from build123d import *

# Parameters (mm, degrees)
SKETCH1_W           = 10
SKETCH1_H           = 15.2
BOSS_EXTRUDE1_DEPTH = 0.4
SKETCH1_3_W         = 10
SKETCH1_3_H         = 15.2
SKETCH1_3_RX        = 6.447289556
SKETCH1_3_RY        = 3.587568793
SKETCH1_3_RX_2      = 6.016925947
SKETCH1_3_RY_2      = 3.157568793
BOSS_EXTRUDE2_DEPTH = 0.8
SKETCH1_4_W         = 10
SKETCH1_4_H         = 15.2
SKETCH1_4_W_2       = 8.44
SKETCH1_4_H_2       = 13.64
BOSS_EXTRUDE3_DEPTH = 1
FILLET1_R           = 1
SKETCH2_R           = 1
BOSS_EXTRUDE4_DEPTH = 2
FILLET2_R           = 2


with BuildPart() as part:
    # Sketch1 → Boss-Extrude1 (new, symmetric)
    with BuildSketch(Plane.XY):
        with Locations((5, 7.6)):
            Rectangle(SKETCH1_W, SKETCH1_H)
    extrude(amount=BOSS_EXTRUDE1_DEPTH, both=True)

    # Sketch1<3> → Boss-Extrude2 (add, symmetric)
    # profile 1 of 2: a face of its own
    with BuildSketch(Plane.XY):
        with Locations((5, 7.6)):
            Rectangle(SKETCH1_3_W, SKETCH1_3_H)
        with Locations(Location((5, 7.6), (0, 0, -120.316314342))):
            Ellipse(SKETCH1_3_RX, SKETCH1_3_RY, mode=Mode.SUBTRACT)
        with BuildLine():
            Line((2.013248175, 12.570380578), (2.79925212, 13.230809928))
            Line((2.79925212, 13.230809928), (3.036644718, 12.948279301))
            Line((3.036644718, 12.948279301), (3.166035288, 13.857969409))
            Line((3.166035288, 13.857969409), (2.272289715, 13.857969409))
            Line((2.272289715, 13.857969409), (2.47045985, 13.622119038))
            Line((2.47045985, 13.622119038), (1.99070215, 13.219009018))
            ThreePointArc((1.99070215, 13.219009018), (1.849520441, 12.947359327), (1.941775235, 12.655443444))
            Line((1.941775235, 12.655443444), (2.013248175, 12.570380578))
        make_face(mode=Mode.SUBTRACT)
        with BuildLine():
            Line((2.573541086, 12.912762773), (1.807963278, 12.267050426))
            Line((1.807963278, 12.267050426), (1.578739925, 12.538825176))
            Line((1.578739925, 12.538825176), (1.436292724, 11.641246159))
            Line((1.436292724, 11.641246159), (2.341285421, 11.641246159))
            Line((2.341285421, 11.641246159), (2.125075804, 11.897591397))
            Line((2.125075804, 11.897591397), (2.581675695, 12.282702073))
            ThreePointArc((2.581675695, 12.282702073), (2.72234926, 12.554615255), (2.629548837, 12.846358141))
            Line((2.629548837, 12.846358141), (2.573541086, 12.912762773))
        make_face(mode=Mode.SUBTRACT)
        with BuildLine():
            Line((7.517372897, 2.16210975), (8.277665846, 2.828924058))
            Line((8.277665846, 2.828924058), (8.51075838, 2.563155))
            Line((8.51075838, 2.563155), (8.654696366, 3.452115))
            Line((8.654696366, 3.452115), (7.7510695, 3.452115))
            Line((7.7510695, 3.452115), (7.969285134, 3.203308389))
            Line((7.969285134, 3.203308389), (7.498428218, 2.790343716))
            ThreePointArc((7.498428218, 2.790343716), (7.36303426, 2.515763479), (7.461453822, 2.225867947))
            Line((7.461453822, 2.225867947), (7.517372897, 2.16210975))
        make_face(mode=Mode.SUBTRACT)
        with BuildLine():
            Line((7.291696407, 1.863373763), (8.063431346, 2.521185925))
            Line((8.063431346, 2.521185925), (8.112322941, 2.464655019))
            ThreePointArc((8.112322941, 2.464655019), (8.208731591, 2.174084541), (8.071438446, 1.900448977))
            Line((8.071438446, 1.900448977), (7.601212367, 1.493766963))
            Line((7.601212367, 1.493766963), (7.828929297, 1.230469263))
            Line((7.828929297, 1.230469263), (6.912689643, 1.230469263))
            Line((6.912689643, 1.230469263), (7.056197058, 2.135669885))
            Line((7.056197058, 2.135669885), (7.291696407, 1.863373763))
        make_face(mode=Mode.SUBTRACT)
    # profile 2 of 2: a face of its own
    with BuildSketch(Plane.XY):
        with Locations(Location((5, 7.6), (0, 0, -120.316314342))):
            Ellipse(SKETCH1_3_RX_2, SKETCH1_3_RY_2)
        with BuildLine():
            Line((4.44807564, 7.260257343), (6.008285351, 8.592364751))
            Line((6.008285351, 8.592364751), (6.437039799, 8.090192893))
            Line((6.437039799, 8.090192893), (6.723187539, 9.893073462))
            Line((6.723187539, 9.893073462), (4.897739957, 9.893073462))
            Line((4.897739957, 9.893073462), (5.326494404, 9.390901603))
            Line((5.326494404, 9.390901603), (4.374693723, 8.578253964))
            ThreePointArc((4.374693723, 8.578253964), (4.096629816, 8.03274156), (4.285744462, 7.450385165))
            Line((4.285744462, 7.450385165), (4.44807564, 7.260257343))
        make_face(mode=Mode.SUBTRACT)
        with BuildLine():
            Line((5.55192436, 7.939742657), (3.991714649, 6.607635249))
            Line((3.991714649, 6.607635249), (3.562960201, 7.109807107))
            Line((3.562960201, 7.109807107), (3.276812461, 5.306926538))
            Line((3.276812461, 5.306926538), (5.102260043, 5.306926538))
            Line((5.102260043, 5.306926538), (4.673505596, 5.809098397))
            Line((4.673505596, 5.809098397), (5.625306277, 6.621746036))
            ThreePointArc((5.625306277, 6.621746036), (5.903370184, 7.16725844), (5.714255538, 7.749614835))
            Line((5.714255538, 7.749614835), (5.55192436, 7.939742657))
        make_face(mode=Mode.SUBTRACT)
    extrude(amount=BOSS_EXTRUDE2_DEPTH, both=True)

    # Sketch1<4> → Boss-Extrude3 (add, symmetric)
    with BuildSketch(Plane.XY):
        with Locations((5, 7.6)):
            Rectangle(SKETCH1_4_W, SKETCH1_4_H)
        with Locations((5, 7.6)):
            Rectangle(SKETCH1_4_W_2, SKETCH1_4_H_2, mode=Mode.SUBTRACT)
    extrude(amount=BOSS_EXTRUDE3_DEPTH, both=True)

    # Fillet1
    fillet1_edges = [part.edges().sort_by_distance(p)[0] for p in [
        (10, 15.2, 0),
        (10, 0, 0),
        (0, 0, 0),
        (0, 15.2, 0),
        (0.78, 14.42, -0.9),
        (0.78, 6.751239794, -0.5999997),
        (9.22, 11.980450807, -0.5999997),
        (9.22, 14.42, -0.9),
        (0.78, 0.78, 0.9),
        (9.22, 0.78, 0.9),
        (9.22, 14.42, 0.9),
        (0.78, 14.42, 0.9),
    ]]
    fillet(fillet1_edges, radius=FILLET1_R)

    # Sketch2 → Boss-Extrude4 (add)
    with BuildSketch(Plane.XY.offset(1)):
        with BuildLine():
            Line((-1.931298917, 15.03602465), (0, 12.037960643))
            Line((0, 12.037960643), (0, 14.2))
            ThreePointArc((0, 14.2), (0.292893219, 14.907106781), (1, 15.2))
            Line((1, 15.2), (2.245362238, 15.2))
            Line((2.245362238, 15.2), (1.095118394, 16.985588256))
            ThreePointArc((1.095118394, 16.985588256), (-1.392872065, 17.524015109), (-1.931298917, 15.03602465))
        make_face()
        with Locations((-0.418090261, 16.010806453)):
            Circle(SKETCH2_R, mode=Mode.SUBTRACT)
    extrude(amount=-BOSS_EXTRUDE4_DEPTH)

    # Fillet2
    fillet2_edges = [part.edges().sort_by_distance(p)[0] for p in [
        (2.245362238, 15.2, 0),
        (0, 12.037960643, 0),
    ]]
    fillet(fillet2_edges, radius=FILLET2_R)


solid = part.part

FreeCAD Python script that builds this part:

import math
import FreeCAD as App
import Part
import Sketcher

V = App.Vector


def edges_at(feature, points):
    """Names of the edges that pass closest to the given points."""
    edges = feature.Shape.Edges
    near = lambda p: min(range(len(edges)), key=lambda i: edges[i].distToShape(Part.Vertex(*p))[0])
    return sorted({f"Edge{near(p) + 1}" for p in points})


def add_polygon(sketch, points):
    """Adds a closed chain of lines whose ends are joined by coincident constraints."""
    first, n = sketch.GeometryCount, len(points)
    for a, b in zip(points, points[1:] + points[:1]):
        sketch.addGeometry(Part.LineSegment(App.Vector(*a, 0), App.Vector(*b, 0)), False)
    for i in range(n):
        sketch.addConstraint(Sketcher.Constraint("Coincident", first + i, 2, first + (i + 1) % n, 1))

doc = App.newDocument("Part")
body = doc.addObject("PartDesign::Body", "Body")

sketch1 = body.newObject("Sketcher::SketchObject", "Sketch")
sketch1.AttachmentSupport = (doc.getObject("XY_Plane"), [""])
sketch1.MapMode = "FlatFace"
add_polygon(sketch1, [(0, 15), (0, 0), (10, 0), (10, 15)])
sketch1.addConstraint([
    Sketcher.Constraint("Vertical", 0),
    Sketcher.Constraint("Horizontal", 1),
    Sketcher.Constraint("Vertical", 2),
    Sketcher.Constraint("Horizontal", 3),
    Sketcher.Constraint("Coincident", 0, 2, -1, 1),
    Sketcher.Constraint("DistanceX", 1, 1, 1, 2, 10.0),
    Sketcher.Constraint("DistanceY", 0, 2, 0, 1, 15.2),
])
pad1 = body.newObject("PartDesign::Pad", "Pad")
pad1.Profile = sketch1
pad1.Length = 0.8
pad1.Midplane = True

sketch2 = body.newObject("Sketcher::SketchObject", "Sketch001")
sketch2.AttachmentSupport = (doc.getObject("XY_Plane"), [""])
sketch2.MapMode = "FlatFace"
add_polygon(sketch2, [(0, 15.2), (0, 0), (10, 0), (10, 15.2)])
sketch2.addGeometry(Part.LineSegment(V(7.056197, 2.13567, 0), V(7.291696, 1.863374, 0)), False)
sketch2.addGeometry(Part.LineSegment(V(7.291696, 1.863374, 0), V(8.063431, 2.521186, 0)), False)
sketch2.addGeometry(Part.LineSegment(V(8.063431, 2.521186, 0), V(8.112323, 2.464655, 0)), False)
sketch2.addGeometry(Part.ArcOfCircle(Part.Circle(V(7.809778, 2.202994, 0), V(0, 0, 1), 0.4), math.radians(-49.144624), math.radians(40.855376)), False)
sketch2.addGeometry(Part.LineSegment(V(8.071438, 1.900449, 0), V(7.601212, 1.493767, 0)), False)
sketch2.addGeometry(Part.LineSegment(V(7.601212, 1.493767, 0), V(7.828929, 1.230469, 0)), False)
sketch2.addGeometry(Part.LineSegment(V(7.828929, 1.230469, 0), V(6.91269, 1.230469, 0)), False)
sketch2.addGeometry(Part.LineSegment(V(6.91269, 1.230469, 0), V(7.056197, 2.13567, 0)), False)
sketch2.addGeometry(Part.LineSegment(V(8.277666, 2.828924, 0), V(7.517373, 2.16211, 0)), False)
sketch2.addGeometry(Part.LineSegment(V(7.517373, 2.16211, 0), V(7.461454, 2.225868, 0)), False)
sketch2.addGeometry(Part.ArcOfCircle(Part.Circle(V(7.762179, 2.489619, 0), V(0, 0, 1), 0.4), math.radians(131.252355), math.radians(221.252355)), False)
sketch2.addGeometry(Part.LineSegment(V(7.498428, 2.790344, 0), V(7.969285, 3.203308, 0)), False)
sketch2.addGeometry(Part.LineSegment(V(7.969285, 3.203308, 0), V(7.751069, 3.452115, 0)), False)
sketch2.addGeometry(Part.LineSegment(V(7.751069, 3.452115, 0), V(8.654696, 3.452115, 0)), False)
sketch2.addGeometry(Part.LineSegment(V(8.654696, 3.452115, 0), V(8.510758, 2.563155, 0)), False)
sketch2.addGeometry(Part.LineSegment(V(8.510758, 2.563155, 0), V(8.277666, 2.828924, 0)), False)
sketch2.addGeometry(Part.LineSegment(V(1.807963, 12.26705, 0), V(2.573541, 12.912763, 0)), False)
sketch2.addGeometry(Part.LineSegment(V(2.573541, 12.912763, 0), V(2.629549, 12.846358, 0)), False)
sketch2.addGeometry(Part.ArcOfCircle(Part.Circle(V(2.323784, 12.588467, 0), V(0, 0, 1), 0.4), math.radians(-49.854666), math.radians(40.145334)), False)
sketch2.addGeometry(Part.LineSegment(V(2.581676, 12.282702, 0), V(2.125076, 11.897591, 0)), False)
sketch2.addGeometry(Part.LineSegment(V(2.125076, 11.897591, 0), V(2.341285, 11.641246, 0)), False)
sketch2.addGeometry(Part.LineSegment(V(2.341285, 11.641246, 0), V(1.436293, 11.641246, 0)), False)
sketch2.addGeometry(Part.LineSegment(V(1.436293, 11.641246, 0), V(1.57874, 12.538825, 0)), False)
sketch2.addGeometry(Part.LineSegment(V(1.57874, 12.538825, 0), V(1.807963, 12.26705, 0)), False)
sketch2.addGeometry(Part.LineSegment(V(2.799252, 13.23081, 0), V(2.013248, 12.570381, 0)), False)
sketch2.addGeometry(Part.LineSegment(V(2.013248, 12.570381, 0), V(1.941775, 12.655443, 0)), False)
sketch2.addGeometry(Part.ArcOfCircle(Part.Circle(V(2.248021, 12.912763, 0), V(0, 0, 1), 0.4), math.radians(130.038209), math.radians(220.038209)), False)
sketch2.addGeometry(Part.LineSegment(V(1.990702, 13.219009, 0), V(2.47046, 13.622119, 0)), False)
sketch2.addGeometry(Part.LineSegment(V(2.47046, 13.622119, 0), V(2.27229, 13.857969, 0)), False)
sketch2.addGeometry(Part.LineSegment(V(2.27229, 13.857969, 0), V(3.166035, 13.857969, 0)), False)
sketch2.addGeometry(Part.LineSegment(V(3.166035, 13.857969, 0), V(3.036645, 12.948279, 0)), False)
sketch2.addGeometry(Part.LineSegment(V(3.036645, 12.948279, 0), V(2.799252, 13.23081, 0)), False)
sketch2.addGeometry(Part.Ellipse(V(1.745579, 2.034365, 0), V(8.096975, 5.789091, 0), V(5, 7.6, 0)), False)
sketch2.addGeometry(Part.Ellipse(V(1.962816, 2.405878, 0), V(7.725777, 6.006143, 0), V(5, 7.6, 0)), False)
sketch2.addGeometry(Part.LineSegment(V(6.008285, 8.592365, 0), V(4.448076, 7.260257, 0)), False)
sketch2.addGeometry(Part.LineSegment(V(4.448076, 7.260257, 0), V(4.285744, 7.450385, 0)), False)
sketch2.addGeometry(Part.ArcOfCircle(Part.Circle(V(4.894153, 7.969845, 0), V(0, 0, 1), 0.8), math.radians(130.490707), math.radians(220.490707)), False)
sketch2.addGeometry(Part.LineSegment(V(4.374694, 8.578254, 0), V(5.326494, 9.390902, 0)), False)
sketch2.addGeometry(Part.LineSegment(V(5.326494, 9.390902, 0), V(4.89774, 9.893073, 0)), False)
sketch2.addGeometry(Part.LineSegment(V(4.89774, 9.893073, 0), V(6.723188, 9.893073, 0)), False)
sketch2.addGeometry(Part.LineSegment(V(6.723188, 9.893073, 0), V(6.43704, 8.090193, 0)), False)
sketch2.addGeometry(Part.LineSegment(V(6.43704, 8.090193, 0), V(6.008285, 8.592365, 0)), False)
sketch2.addGeometry(Part.LineSegment(V(3.991715, 6.607635, 0), V(5.551924, 7.939743, 0)), False)
sketch2.addGeometry(Part.LineSegment(V(5.551924, 7.939743, 0), V(5.714256, 7.749615, 0)), False)
sketch2.addGeometry(Part.ArcOfCircle(Part.Circle(V(5.105847, 7.230155, 0), V(0, 0, 1), 0.8), math.radians(-49.509293), math.radians(40.490707)), False)
sketch2.addGeometry(Part.LineSegment(V(5.625306, 6.621746, 0), V(4.673506, 5.809098, 0)), False)
sketch2.addGeometry(Part.LineSegment(V(4.673506, 5.809098, 0), V(5.10226, 5.306927, 0)), False)
sketch2.addGeometry(Part.LineSegment(V(5.10226, 5.306927, 0), V(3.276812, 5.306927, 0)), False)
sketch2.addGeometry(Part.LineSegment(V(3.276812, 5.306927, 0), V(3.56296, 7.109807, 0)), False)
sketch2.addGeometry(Part.LineSegment(V(3.56296, 7.109807, 0), V(3.991715, 6.607635, 0)), False)
sketch2.addConstraint([
    Sketcher.Constraint("Block", 36),
    Sketcher.Constraint("Block", 37),
    Sketcher.Constraint("Coincident", 4, 2, 5, 1),
    Sketcher.Constraint("Coincident", 5, 2, 6, 1),
    Sketcher.Constraint("Tangent", 6, 2, 7, 2),
    Sketcher.Constraint("Tangent", 7, 1, 8, 1),
    Sketcher.Constraint("Coincident", 8, 2, 9, 1),
    Sketcher.Constraint("Coincident", 9, 2, 10, 1),
    Sketcher.Constraint("Coincident", 10, 2, 11, 1),
    Sketcher.Constraint("Coincident", 11, 2, 4, 1),
    Sketcher.Constraint("Coincident", 12, 2, 13, 1),
    Sketcher.Constraint("Tangent", 13, 2, 14, 2),
    Sketcher.Constraint("Tangent", 14, 1, 15, 1),
    Sketcher.Constraint("Coincident", 15, 2, 16, 1),
    Sketcher.Constraint("Coincident", 16, 2, 17, 1),
    Sketcher.Constraint("Coincident", 17, 2, 18, 1),
    Sketcher.Constraint("Coincident", 18, 2, 19, 1),
    Sketcher.Constraint("Coincident", 19, 2, 12, 1),
    Sketcher.Constraint("Coincident", 20, 2, 21, 1),
    Sketcher.Constraint("Tangent", 21, 2, 22, 2),
    Sketcher.Constraint("Tangent", 22, 1, 23, 1),
    Sketcher.Constraint("Coincident", 23, 2, 24, 1),
    Sketcher.Constraint("Coincident", 24, 2, 25, 1),
    Sketcher.Constraint("Coincident", 25, 2, 26, 1),
    Sketcher.Constraint("Coincident", 26, 2, 27, 1),
    Sketcher.Constraint("Coincident", 27, 2, 20, 1),
    Sketcher.Constraint("Coincident", 28, 2, 29, 1),
    Sketcher.Constraint("Tangent", 29, 2, 30, 2),
    Sketcher.Constraint("Tangent", 30, 1, 31, 1),
    Sketcher.Constraint("Coincident", 31, 2, 32, 1),
    Sketcher.Constraint("Coincident", 32, 2, 33, 1),
    Sketcher.Constraint("Coincident", 33, 2, 34, 1),
    Sketcher.Constraint("Coincident", 34, 2, 35, 1),
    Sketcher.Constraint("Coincident", 35, 2, 28, 1),
    Sketcher.Constraint("Coincident", 38, 2, 39, 1),
    Sketcher.Constraint("Tangent", 39, 2, 40, 2),
    Sketcher.Constraint("Tangent", 40, 1, 41, 1),
    Sketcher.Constraint("Coincident", 41, 2, 42, 1),
    Sketcher.Constraint("Coincident", 42, 2, 43, 1),
    Sketcher.Constraint("Coincident", 43, 2, 44, 1),
    Sketcher.Constraint("Coincident", 44, 2, 45, 1),
    Sketcher.Constraint("Coincident", 45, 2, 38, 1),
    Sketcher.Constraint("Coincident", 46, 2, 47, 1),
    Sketcher.Constraint("Tangent", 47, 2, 48, 2),
    Sketcher.Constraint("Tangent", 48, 1, 49, 1),
    Sketcher.Constraint("Coincident", 49, 2, 50, 1),
    Sketcher.Constraint("Coincident", 50, 2, 51, 1),
    Sketcher.Constraint("Coincident", 51, 2, 52, 1),
    Sketcher.Constraint("Coincident", 52, 2, 53, 1),
    Sketcher.Constraint("Coincident", 53, 2, 46, 1),
    Sketcher.Constraint("Vertical", 0),
    Sketcher.Constraint("Horizontal", 1),
    Sketcher.Constraint("Vertical", 2),
    Sketcher.Constraint("Horizontal", 3),
    Sketcher.Constraint("Horizontal", 10),
    Sketcher.Constraint("Horizontal", 17),
    Sketcher.Constraint("Horizontal", 25),
    Sketcher.Constraint("Horizontal", 33),
    Sketcher.Constraint("Horizontal", 43),
    Sketcher.Constraint("Horizontal", 51),
    Sketcher.Constraint("Coincident", 0, 2, -1, 1),
    Sketcher.Constraint("Equal", 7, 14),
    Sketcher.Constraint("Equal", 14, 22),
    Sketcher.Constraint("Equal", 22, 30),
    Sketcher.Constraint("Equal", 40, 48),
    Sketcher.Constraint("Parallel", 4, 6),
    Sketcher.Constraint("Perpendicular", 6, 8),
    Sketcher.Constraint("Perpendicular", 8, 9),
    Sketcher.Constraint("Perpendicular", 12, 13),
    Sketcher.Constraint("Perpendicular", 13, 15),
    Sketcher.Constraint("Perpendicular", 15, 16),
    Sketcher.Constraint("Parallel", 16, 19),
    Sketcher.Constraint("Perpendicular", 20, 21),
    Sketcher.Constraint("Perpendicular", 21, 23),
    Sketcher.Constraint("Perpendicular", 23, 24),
    Sketcher.Constraint("Parallel", 24, 27),
    Sketcher.Constraint("Perpendicular", 28, 29),
    Sketcher.Constraint("Perpendicular", 29, 31),
    Sketcher.Constraint("Perpendicular", 31, 32),
    Sketcher.Constraint("Parallel", 32, 35),
    Sketcher.Constraint("Perpendicular", 38, 39),
    Sketcher.Constraint("Perpendicular", 39, 41),
    Sketcher.Constraint("Perpendicular", 41, 42),
    Sketcher.Constraint("Parallel", 42, 45),
    Sketcher.Constraint("Perpendicular", 45, 46),
    Sketcher.Constraint("Perpendicular", 46, 47),
    Sketcher.Constraint("Perpendicular", 47, 49),
    Sketcher.Constraint("Perpendicular", 49, 50),
    Sketcher.Constraint("Parallel", 44, 52),
    Sketcher.Constraint("Parallel", 50, 53),
    Sketcher.Constraint("Horizontal", 30, 3, 20, 2),
    Sketcher.Constraint("Equal", 43, 51),
    Sketcher.Constraint("Equal", 42, 45),
    Sketcher.Constraint("Equal", 38, 46),
    Sketcher.Constraint("Equal", 39, 47),
    Sketcher.Constraint("Equal", 41, 49),
    Sketcher.Constraint("Equal", 45, 50),
    Sketcher.Constraint("Radius", 7, 0.4),
    Sketcher.Constraint("Radius", 40, 0.8),
    Sketcher.Constraint("DistanceX", 1, 1, 1, 2, 10.0),
    Sketcher.Constraint("DistanceY", 0, 2, 0, 1, 15.2),
    Sketcher.Constraint("Distance", 39, 0.25),
    Sketcher.Constraint("DistanceX", 23, 2, 38, 2, 2.323),
    Sketcher.Constraint("DistanceX", 10, 2, 10, 1, 0.91624),
    Sketcher.Constraint("DistanceY", -1, 1, 41, 2, 9.390902),
    Sketcher.Constraint("DistanceY", -1, 1, 49, 2, 5.809098),
    Sketcher.Constraint("DistanceX", 14, 3, 7, 3, 0.047599),
    Sketcher.Constraint("DistanceX", 11, 2, 4, 2, 0.235499),
    Sketcher.Constraint("DistanceY", 10, 2, 11, 2, 0.905201),
    Sketcher.Constraint("DistanceY", 11, 2, 13, 2, 0.090198),
    Sketcher.Constraint("DistanceY", 6, 2, 18, 2, 0.0985),
    Sketcher.Constraint("DistanceX", 23, 2, 22, 1, 0.4566),
    Sketcher.Constraint("DistanceX", 22, 3, 24, 2, 0.017501),
    Sketcher.Constraint("DistanceY", 48, 3, 40, 1, 1.348099),
    Sketcher.Constraint("DistanceX", 40, 1, 41, 2, 0.951801),
    Sketcher.Constraint("Distance", 6, 0.07474),
    Sketcher.Constraint("Distance", 9, 0.34811),
    Sketcher.Constraint("Distance", 12, 1.01128),
    Sketcher.Constraint("Distance", 21, 0.08687),
    Sketcher.Constraint("Distance", 24, 0.33535),
    Sketcher.Constraint("Distance", 28, 1.02663),
    Sketcher.Constraint("Distance", 31, 0.62663),
    Sketcher.Constraint("Distance", 42, 0.660308),
    Sketcher.Constraint("DistanceX", 17, 1, 17, 2, 0.903627),
    Sketcher.Constraint("DistanceX", 25, 2, 25, 1, 0.904993),
    Sketcher.Constraint("DistanceX", 33, 1, 33, 2, 0.893746),
    Sketcher.Constraint("DistanceX", 43, 1, 43, 2, 1.825448),
    Sketcher.Constraint("DistanceX", -1, 1, 14, 3, 7.762179),
    Sketcher.Constraint("DistanceY", -1, 1, 14, 3, 2.489619),
    Sketcher.Constraint("DistanceX", -1, 1, 30, 3, 2.248021),
    Sketcher.Constraint("DistanceX", -1, 1, 5, 2, 8.063431),
    Sketcher.Constraint("DistanceY", -1, 1, 7, 1, 1.900449),
    Sketcher.Constraint("DistanceX", -1, 1, 9, 2, 7.828929),
    Sketcher.Constraint("DistanceY", -1, 1, 12, 2, 2.16211),
    Sketcher.Constraint("DistanceY", -1, 1, 15, 2, 3.203308),
    Sketcher.Constraint("DistanceX", -1, 1, 16, 2, 7.751069),
    Sketcher.Constraint("DistanceX", -1, 1, 20, 2, 2.573541),
    Sketcher.Constraint("DistanceY", -1, 1, 21, 2, 12.846358),
    Sketcher.Constraint("DistanceX", -1, 1, 26, 2, 1.57874),
    Sketcher.Constraint("DistanceY", -1, 1, 27, 2, 12.26705),
    Sketcher.Constraint("DistanceX", -1, 1, 28, 2, 2.013248),
    Sketcher.Constraint("DistanceY", -1, 1, 28, 2, 12.570381),
    Sketcher.Constraint("DistanceX", -1, 1, 32, 2, 2.27229),
    Sketcher.Constraint("DistanceY", -1, 1, 34, 2, 12.948279),
    Sketcher.Constraint("DistanceX", -1, 1, 44, 2, 6.43704),
    Sketcher.Constraint("DistanceX", -1, 1, 50, 2, 5.10226),
    Sketcher.Constraint("DistanceX", 4, 2, 7, 3, 0.518081),
])
pad2 = body.newObject("PartDesign::Pad", "Pad001")
pad2.Profile = sketch2
pad2.Length = 1.6
pad2.Midplane = True

sketch3 = body.newObject("Sketcher::SketchObject", "Sketch002")
sketch3.AttachmentSupport = (doc.getObject("XY_Plane"), [""])
sketch3.MapMode = "FlatFace"
add_polygon(sketch3, [(0, 15), (0, 0), (10, 0), (10, 15)])
add_polygon(sketch3, [(9, 1), (1, 1), (1, 14), (9, 14)])
sketch3.addConstraint([
    Sketcher.Constraint("Vertical", 0),
    Sketcher.Constraint("Horizontal", 1),
    Sketcher.Constraint("Vertical", 2),
    Sketcher.Constraint("Horizontal", 3),
    Sketcher.Constraint("Horizontal", 4),
    Sketcher.Constraint("Vertical", 5),
    Sketcher.Constraint("Horizontal", 6),
    Sketcher.Constraint("Vertical", 7),
    Sketcher.Constraint("Coincident", 0, 2, -1, 1),
    Sketcher.Constraint("DistanceX", 1, 1, 1, 2, 10.0),
    Sketcher.Constraint("DistanceY", 0, 2, 0, 1, 15.2),
    Sketcher.Constraint("DistanceX", 4, 2, 4, 1, 8.44),
    Sketcher.Constraint("DistanceY", 5, 1, 5, 2, 13.64),
    Sketcher.Constraint("DistanceX", -1, 1, 4, 2, 0.78),
    Sketcher.Constraint("DistanceY", -1, 1, 4, 2, 0.78),
])
pad3 = body.newObject("PartDesign::Pad", "Pad002")
pad3.Profile = sketch3
pad3.Length = 2
pad3.Midplane = True
doc.recompute()

fillet = body.newObject("PartDesign::Fillet", "Fillet")
fillet.Base = (pad3, edges_at(pad3, [
    (10, 15.2, 0),
    (10, 0, 0),
    (0, 0, 0),
    (0, 15.2, 0),
    (0.78, 14.42, -0.9),
    (0.78, 6.751, -0.6),
    (9.22, 11.98, -0.6),
    (9.22, 14.42, -0.9),
    (0.78, 0.78, 0.9),
    (9.22, 0.78, 0.9),
    (9.22, 14.42, 0.9),
    (0.78, 14.42, 0.9),
]))
fillet.Radius = 1

sketch4 = body.newObject("Sketcher::SketchObject", "Sketch003")
sketch4.AttachmentSupport = (doc.getObject("XY_Plane"), [""])
sketch4.MapMode = "FlatFace"
sketch4.AttachmentOffset = App.Placement(V(0, 0, 1), App.Rotation())
sketch4.addGeometry([
    Part.LineSegment(V(-1.9, 15, 0), V(0, 12, 0)),
    Part.LineSegment(V(0, 12, 0), V(0, 14.2, 0)),
    Part.ArcOfCircle(Part.Circle(V(1, 14.2, 0), V(0, 0, 1), 1), math.radians(90), math.radians(180)),
    Part.LineSegment(V(1, 15.2, 0), V(2.2, 15.2, 0)),
    Part.LineSegment(V(2.2, 15.2, 0), V(1.1, 17, 0)),
    Part.ArcOfCircle(Part.Circle(V(-0.4, 16, 0), V(0, 0, 1), 1.8), math.radians(33), math.radians(213)),
    Part.Circle(V(-0.4, 16, 0), V(0, 0, 1), 1),
], False)
sketch4.addConstraint([
    Sketcher.Constraint("Coincident", 0, 2, 1, 1),
    Sketcher.Constraint("Tangent", 1, 2, 2, 2),
    Sketcher.Constraint("Tangent", 2, 1, 3, 1),
    Sketcher.Constraint("Coincident", 3, 2, 4, 1),
    Sketcher.Constraint("Tangent", 4, 2, 5, 1),
    Sketcher.Constraint("Tangent", 5, 2, 0, 1),
    Sketcher.Constraint("Vertical", 1),
    Sketcher.Constraint("Horizontal", 3),
    Sketcher.Constraint("Coincident", 6, 3, 5, 3),
    Sketcher.Constraint("Equal", 2, 6),
    Sketcher.Constraint("PointOnObject", 0, 2, -2),
    Sketcher.Constraint("Parallel", 0, 4),
    Sketcher.Constraint("Diameter", 6, 2.0),
    Sketcher.Constraint("Radius", 5, 1.8),
    Sketcher.Constraint("DistanceY", -1, 1, 2, 3, 14.2),
    Sketcher.Constraint("DistanceY", 1, 1, 1, 2, 2.162039),
    Sketcher.Constraint("DistanceX", 5, 2, -1, 1, 1.931299),
    Sketcher.Constraint("DistanceX", 3, 1, 3, 2, 1.245362),
])
pad4 = body.newObject("PartDesign::Pad", "Pad003")
pad4.Profile = sketch4
pad4.Length = 2
pad4.Reversed = True
doc.recompute()

fillet2 = body.newObject("PartDesign::Fillet", "Fillet001")
fillet2.Base = (pad4, edges_at(pad4, [(2.245, 15.2, 0), (0, 12.038, 0)]))
fillet2.Radius = 2

doc.recompute()
